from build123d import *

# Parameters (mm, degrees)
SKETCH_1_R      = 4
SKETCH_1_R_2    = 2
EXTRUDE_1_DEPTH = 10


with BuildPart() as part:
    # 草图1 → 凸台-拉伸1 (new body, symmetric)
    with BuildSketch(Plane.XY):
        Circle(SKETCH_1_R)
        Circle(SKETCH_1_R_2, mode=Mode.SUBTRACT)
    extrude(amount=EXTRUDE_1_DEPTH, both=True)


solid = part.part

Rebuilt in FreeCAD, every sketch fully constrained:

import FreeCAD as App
import Part
import Sketcher
Q = App.Units.Quantity

doc = App.newDocument("Part")
body = doc.addObject("PartDesign::Body", "Body")

sketch1 = body.newObject("Sketcher::SketchObject", "Sketch")
sketch1.AttachmentSupport = (doc.getObject("XY_Plane"), [""])
sketch1.MapMode = "FlatFace"
sketch1.addGeometry([
    Part.Circle(App.Vector(0, 0, 0), App.Vector(0, 0, 1), 4),
    Part.Circle(App.Vector(0, 0, 0), App.Vector(0, 0, 1), 2),
], False)
sketch1.addConstraint([
    Sketcher.Constraint("Coincident", 0, 3, -1, 1),
    Sketcher.Constraint("Coincident", 1, 3, -1, 1),
    Sketcher.Constraint("Diameter", 0, Q("8 mm")),
    Sketcher.Constraint("Diameter", 1, Q("4 mm")),
])
pad1 = body.newObject("PartDesign::Pad", "Pad")
pad1.Profile = sketch1
pad1.Length = 20
pad1.Midplane = True

doc.recompute()
